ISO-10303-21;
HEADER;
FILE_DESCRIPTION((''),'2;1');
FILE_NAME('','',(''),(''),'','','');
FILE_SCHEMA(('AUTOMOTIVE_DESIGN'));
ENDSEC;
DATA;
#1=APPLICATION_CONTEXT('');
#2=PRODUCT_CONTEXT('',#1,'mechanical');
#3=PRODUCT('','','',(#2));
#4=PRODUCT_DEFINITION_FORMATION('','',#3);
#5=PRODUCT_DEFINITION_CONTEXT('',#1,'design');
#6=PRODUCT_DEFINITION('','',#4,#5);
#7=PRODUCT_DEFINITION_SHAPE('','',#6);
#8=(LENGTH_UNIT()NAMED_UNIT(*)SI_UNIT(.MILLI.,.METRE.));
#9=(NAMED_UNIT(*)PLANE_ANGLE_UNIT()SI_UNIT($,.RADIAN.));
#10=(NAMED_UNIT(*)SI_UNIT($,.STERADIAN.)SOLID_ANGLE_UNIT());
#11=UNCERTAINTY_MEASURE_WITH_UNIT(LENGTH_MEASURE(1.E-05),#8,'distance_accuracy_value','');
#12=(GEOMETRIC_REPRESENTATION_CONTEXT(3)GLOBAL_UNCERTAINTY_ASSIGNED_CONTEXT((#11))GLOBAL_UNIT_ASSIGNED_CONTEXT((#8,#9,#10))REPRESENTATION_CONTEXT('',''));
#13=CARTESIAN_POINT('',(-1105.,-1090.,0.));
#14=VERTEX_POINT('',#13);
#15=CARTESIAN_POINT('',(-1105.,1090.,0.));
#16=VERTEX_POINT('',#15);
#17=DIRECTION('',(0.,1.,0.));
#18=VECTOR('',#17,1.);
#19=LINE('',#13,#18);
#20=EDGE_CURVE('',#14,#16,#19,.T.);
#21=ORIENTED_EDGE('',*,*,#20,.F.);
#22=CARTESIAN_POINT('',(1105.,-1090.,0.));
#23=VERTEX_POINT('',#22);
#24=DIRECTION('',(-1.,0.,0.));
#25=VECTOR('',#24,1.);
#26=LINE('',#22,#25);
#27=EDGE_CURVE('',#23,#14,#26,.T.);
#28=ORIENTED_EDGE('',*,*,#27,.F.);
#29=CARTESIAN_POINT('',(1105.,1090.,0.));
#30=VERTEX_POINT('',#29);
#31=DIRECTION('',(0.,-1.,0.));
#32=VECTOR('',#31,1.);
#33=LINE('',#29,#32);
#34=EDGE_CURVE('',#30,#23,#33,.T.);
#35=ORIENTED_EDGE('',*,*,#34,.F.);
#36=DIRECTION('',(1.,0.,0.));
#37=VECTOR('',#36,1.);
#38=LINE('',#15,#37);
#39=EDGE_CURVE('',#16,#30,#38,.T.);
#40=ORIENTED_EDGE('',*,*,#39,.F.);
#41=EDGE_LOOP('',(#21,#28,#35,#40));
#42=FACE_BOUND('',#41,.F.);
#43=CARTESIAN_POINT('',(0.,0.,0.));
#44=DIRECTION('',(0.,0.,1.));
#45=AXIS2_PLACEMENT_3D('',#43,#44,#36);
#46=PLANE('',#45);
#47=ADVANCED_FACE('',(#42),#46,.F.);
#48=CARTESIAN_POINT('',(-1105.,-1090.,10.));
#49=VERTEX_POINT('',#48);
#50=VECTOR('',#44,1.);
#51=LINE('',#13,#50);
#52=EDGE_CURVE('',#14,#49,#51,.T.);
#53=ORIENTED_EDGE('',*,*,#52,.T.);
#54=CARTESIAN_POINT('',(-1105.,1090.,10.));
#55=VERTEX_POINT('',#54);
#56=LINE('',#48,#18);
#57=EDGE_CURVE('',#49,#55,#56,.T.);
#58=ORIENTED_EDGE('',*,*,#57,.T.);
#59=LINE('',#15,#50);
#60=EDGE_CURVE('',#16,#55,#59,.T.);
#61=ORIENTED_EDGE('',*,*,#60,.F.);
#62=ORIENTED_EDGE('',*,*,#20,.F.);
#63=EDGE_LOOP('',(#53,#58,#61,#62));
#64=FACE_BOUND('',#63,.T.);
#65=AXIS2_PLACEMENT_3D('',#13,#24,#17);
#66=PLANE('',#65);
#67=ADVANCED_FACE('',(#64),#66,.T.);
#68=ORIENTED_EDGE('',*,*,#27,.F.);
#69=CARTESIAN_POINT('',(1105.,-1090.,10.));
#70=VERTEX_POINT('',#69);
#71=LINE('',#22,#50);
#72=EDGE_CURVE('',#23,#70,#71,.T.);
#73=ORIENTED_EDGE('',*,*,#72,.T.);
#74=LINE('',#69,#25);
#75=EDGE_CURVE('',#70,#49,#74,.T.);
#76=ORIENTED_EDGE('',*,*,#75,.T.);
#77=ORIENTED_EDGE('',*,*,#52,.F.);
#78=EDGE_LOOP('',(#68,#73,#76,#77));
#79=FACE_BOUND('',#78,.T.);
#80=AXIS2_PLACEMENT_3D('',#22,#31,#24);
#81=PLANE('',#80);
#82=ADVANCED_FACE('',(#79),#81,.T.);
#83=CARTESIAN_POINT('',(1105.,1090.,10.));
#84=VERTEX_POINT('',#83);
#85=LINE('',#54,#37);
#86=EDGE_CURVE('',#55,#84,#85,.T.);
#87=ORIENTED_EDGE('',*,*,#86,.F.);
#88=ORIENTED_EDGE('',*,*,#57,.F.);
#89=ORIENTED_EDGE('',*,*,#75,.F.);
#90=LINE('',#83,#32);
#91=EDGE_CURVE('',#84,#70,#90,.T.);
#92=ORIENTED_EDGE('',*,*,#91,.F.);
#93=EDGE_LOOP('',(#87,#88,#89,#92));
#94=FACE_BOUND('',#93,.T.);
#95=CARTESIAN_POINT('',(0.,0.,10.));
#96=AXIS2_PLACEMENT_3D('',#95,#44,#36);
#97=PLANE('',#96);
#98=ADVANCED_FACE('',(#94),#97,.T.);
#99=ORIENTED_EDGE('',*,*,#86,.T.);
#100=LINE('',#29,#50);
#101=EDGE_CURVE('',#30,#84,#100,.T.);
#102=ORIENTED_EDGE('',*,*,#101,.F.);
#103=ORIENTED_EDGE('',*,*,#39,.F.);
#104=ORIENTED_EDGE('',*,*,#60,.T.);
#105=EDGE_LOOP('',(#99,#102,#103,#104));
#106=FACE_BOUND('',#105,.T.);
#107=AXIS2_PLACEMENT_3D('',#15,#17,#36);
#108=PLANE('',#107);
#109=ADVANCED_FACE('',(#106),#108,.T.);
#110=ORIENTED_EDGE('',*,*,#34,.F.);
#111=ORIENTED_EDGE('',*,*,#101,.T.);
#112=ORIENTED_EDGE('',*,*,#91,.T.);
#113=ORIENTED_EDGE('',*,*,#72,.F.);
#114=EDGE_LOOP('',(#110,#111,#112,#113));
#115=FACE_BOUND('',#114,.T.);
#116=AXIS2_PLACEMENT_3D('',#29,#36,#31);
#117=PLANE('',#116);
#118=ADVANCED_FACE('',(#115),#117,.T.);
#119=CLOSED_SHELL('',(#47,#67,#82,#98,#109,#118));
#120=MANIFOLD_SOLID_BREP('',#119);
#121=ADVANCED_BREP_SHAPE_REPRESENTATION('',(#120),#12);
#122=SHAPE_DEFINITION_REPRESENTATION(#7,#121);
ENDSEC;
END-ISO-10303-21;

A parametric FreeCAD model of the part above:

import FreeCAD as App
import Part
import Sketcher

V = App.Vector

doc = App.newDocument("Part")
body = doc.addObject("PartDesign::Body", "Body")

sketch1 = body.newObject("Sketcher::SketchObject", "Sketch")
sketch1.AttachmentSupport = (doc.getObject("XY_Plane"), [""])
sketch1.MapMode = "FlatFace"
sketch1.addGeometry([
    Part.LineSegment(V(1105, 1090, 0), V(-1105, 1090, 0)),
    Part.LineSegment(V(-1105, 1090, 0), V(-1105, -1090, 0)),
    Part.LineSegment(V(-1105, -1090, 0), V(1105, -1090, 0)),
    Part.LineSegment(V(1105, -1090, 0), V(1105, 1090, 0)),
], False)
sketch1.addConstraint([
    Sketcher.Constraint("Coincident", 0, 2, 1, 1),
    Sketcher.Constraint("Coincident", 1, 2, 2, 1),
    Sketcher.Constraint("Coincident", 2, 2, 3, 1),
    Sketcher.Constraint("Coincident", 3, 2, 0, 1),
    Sketcher.Constraint("Horizontal", 0),
    Sketcher.Constraint("Vertical", 1),
    Sketcher.Constraint("Horizontal", 2),
    Sketcher.Constraint("Vertical", 3),
    Sketcher.Constraint("Symmetric", 0, 2, 2, 2, -1, 1),
    Sketcher.Constraint("DistanceX", 0, 2, 0, 1, 2210.0),
    Sketcher.Constraint("DistanceY", 1, 2, 1, 1, 2180.0),
])
pad1 = body.newObject("PartDesign::Pad", "Pad")
pad1.Profile = sketch1
pad1.Length = 10

doc.recompute()
